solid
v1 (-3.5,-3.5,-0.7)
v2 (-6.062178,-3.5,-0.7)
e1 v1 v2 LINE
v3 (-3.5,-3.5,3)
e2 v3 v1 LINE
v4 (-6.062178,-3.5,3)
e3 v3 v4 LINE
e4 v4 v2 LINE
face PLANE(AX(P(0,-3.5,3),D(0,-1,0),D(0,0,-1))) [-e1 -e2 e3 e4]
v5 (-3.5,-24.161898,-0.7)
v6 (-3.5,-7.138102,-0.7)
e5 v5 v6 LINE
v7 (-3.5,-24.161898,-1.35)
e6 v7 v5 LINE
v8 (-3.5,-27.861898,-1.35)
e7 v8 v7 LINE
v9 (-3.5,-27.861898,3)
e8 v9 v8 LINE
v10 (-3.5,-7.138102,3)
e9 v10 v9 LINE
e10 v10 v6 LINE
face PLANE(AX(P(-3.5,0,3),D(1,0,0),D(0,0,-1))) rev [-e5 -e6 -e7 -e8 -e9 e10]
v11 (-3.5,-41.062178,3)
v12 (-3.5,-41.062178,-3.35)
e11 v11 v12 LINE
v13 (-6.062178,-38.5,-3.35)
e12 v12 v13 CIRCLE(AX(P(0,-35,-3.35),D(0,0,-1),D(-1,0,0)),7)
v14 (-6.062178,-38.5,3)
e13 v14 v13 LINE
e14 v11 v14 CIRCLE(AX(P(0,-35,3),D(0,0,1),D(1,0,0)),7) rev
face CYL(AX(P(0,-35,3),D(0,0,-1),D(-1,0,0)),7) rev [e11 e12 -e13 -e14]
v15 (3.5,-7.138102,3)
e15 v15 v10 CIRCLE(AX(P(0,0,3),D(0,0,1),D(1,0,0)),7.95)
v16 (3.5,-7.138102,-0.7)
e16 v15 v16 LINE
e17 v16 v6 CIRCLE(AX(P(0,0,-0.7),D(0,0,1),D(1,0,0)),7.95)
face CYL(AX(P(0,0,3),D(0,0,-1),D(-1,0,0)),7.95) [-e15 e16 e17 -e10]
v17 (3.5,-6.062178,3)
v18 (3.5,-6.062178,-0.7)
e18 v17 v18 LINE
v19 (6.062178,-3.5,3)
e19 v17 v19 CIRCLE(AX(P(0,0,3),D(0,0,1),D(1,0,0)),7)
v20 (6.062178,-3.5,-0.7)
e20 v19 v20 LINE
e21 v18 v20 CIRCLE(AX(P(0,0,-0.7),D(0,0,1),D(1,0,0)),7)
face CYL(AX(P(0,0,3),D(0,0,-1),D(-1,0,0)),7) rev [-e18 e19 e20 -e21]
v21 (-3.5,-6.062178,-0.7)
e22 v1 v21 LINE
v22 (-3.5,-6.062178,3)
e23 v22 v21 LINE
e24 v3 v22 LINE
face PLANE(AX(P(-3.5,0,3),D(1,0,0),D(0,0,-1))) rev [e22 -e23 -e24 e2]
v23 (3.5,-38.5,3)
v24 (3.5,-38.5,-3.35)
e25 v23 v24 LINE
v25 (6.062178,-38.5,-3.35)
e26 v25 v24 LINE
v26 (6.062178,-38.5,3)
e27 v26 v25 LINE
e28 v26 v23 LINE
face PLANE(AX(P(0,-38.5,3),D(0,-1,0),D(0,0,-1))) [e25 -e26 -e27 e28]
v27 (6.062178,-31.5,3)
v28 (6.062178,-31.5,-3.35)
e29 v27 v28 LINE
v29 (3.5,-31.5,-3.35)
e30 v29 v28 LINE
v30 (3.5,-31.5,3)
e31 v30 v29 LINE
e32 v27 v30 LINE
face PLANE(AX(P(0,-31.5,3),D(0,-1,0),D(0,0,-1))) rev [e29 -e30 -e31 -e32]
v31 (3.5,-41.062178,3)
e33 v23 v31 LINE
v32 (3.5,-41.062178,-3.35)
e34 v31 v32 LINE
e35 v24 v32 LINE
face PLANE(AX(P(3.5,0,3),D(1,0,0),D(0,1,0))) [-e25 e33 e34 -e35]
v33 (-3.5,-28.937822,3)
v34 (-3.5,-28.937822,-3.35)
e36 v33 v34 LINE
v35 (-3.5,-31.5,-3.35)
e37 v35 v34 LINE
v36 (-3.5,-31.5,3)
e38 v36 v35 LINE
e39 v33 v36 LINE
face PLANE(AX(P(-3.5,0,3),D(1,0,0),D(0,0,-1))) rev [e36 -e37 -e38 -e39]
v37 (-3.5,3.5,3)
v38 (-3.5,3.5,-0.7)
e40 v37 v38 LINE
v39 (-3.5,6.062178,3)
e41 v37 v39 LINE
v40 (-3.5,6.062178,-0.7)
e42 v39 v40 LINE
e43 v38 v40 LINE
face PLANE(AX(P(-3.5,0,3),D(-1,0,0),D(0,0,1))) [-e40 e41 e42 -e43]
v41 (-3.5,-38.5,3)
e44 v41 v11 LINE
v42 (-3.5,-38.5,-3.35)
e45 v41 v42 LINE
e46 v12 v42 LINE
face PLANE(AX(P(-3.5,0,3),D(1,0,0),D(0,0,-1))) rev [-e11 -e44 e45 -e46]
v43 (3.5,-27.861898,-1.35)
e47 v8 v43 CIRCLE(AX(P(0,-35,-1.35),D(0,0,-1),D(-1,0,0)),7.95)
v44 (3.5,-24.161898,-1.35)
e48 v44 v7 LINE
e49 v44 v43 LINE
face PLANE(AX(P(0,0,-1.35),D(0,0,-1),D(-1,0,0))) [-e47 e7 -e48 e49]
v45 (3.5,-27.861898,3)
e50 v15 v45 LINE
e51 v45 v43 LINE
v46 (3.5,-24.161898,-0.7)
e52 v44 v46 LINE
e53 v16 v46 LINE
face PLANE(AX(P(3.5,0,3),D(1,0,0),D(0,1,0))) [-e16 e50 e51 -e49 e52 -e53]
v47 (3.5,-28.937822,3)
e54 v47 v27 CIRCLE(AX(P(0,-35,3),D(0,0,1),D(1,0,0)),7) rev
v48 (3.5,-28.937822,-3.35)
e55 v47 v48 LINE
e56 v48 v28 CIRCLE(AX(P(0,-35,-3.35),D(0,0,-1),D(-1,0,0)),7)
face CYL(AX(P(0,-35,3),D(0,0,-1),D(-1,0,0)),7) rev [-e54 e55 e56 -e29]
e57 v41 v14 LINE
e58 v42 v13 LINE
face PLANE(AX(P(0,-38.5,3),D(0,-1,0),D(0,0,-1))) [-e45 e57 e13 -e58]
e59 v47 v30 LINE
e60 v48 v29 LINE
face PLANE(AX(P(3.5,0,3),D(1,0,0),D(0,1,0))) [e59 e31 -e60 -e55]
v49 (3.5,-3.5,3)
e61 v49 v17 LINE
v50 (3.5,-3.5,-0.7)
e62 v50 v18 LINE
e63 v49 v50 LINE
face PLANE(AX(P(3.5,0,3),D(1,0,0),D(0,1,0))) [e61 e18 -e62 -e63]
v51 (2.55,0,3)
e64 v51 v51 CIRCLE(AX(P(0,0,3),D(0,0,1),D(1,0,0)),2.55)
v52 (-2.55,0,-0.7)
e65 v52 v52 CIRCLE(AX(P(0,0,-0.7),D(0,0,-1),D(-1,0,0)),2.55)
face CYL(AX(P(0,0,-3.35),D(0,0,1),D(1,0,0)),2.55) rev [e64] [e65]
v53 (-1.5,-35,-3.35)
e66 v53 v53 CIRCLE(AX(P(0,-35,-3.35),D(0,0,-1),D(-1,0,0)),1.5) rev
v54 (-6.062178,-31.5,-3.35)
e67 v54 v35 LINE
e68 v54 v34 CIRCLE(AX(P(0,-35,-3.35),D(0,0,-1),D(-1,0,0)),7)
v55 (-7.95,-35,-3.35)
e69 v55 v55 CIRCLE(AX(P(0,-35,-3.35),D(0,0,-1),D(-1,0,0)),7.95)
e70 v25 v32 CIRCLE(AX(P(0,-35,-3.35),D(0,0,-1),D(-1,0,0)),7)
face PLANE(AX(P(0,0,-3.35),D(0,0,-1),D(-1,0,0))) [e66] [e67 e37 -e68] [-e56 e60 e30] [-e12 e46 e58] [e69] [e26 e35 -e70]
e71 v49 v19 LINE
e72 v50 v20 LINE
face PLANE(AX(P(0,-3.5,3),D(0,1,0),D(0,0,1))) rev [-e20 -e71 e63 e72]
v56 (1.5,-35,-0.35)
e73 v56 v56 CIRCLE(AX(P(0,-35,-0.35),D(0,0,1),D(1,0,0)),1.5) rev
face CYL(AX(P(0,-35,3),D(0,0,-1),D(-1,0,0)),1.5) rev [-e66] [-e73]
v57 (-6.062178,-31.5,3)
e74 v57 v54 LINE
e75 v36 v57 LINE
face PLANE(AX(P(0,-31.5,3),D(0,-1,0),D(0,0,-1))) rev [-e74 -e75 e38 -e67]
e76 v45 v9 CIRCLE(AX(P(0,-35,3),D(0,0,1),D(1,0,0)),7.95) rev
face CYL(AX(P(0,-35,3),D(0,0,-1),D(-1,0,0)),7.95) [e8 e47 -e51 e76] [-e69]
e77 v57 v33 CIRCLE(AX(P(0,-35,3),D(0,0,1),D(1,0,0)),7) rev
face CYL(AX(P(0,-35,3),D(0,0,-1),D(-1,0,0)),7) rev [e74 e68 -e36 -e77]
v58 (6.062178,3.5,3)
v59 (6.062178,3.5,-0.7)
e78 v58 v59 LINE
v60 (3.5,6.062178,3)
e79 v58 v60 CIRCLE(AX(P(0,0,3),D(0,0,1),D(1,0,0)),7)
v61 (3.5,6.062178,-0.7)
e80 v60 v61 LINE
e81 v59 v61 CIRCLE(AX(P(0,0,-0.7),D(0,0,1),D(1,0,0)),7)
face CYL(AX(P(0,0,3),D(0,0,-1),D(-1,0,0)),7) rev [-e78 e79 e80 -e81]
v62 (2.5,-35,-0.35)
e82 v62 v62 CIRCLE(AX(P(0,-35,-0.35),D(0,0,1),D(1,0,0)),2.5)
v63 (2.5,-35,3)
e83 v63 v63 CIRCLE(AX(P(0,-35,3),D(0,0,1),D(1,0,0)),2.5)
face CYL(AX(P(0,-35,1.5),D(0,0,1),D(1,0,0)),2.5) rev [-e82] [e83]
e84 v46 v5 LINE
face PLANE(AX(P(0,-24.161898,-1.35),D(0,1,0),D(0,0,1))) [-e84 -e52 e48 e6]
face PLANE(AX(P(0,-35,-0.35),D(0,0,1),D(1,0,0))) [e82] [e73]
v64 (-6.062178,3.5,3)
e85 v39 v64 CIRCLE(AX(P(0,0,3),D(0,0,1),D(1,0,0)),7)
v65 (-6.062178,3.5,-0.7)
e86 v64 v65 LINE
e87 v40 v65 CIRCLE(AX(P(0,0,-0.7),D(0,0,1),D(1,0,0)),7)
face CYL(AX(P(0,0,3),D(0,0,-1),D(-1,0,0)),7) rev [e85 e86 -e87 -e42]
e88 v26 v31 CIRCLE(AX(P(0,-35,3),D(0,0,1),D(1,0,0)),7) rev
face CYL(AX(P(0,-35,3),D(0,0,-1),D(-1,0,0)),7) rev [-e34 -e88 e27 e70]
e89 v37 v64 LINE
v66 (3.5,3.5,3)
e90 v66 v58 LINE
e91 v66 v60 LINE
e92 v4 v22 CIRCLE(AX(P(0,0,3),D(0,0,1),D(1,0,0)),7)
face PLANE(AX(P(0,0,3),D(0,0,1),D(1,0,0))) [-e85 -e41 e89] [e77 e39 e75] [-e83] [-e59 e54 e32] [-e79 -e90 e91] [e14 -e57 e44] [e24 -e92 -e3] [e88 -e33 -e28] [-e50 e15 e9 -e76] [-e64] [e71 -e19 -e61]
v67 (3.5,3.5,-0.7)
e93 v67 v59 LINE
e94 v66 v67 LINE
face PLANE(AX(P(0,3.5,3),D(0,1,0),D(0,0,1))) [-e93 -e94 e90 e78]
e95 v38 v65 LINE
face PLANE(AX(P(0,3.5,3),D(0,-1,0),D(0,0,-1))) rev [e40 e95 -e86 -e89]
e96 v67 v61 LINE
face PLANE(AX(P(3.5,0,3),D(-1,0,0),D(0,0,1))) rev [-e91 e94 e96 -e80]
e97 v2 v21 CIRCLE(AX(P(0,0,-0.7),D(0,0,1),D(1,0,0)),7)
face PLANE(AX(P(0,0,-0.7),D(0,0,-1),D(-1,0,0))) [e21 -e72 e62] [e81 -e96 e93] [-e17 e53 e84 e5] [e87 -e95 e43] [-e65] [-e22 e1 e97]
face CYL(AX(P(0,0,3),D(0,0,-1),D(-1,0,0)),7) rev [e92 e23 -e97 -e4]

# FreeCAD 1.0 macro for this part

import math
import FreeCAD as App
import Part
import Sketcher

V = App.Vector

doc = App.newDocument("Part")
body = doc.addObject("PartDesign::Body", "Body")

sketch1 = body.newObject("Sketcher::SketchObject", "Sketch")
sketch1.AttachmentSupport = (doc.getObject("XY_Plane"), [""])
sketch1.MapMode = "FlatFace"
sketch1.addGeometry(Part.ArcOfCircle(Part.Circle(V(0, 0, 0), V(0, 0, 1), 8), math.radians(26), math.radians(154)), False)
sketch1.addGeometry(Part.ArcOfCircle(Part.Circle(V(0, 0, 0), V(0, 0, 1), 8), math.radians(154), math.radians(206)), False)
sketch1.addGeometry(Part.ArcOfCircle(Part.Circle(V(0, 0, 0), V(0, 0, 1), 8), math.radians(-154), math.radians(-116)), False)
sketch1.addGeometry(Part.LineSegment(V(-3.5, -7.1, 0), V(-3.5, -27.9, 0)), False)
sketch1.addGeometry(Part.ArcOfCircle(Part.Circle(V(0, -35, 0), V(0, 0, 1), 8), math.radians(116), math.radians(154)), False)
sketch1.addGeometry(Part.ArcOfCircle(Part.Circle(V(0, -35, 0), V(0, 0, 1), 8), math.radians(154), math.radians(206)), False)
sketch1.addGeometry(Part.ArcOfCircle(Part.Circle(V(0, -35, 0), V(0, 0, 1), 8), math.radians(-154), math.radians(-26)), False)
sketch1.addGeometry(Part.ArcOfCircle(Part.Circle(V(0, -35, 0), V(0, 0, 1), 8), math.radians(-26), math.radians(0)), False)
sketch1.addGeometry(Part.ArcOfCircle(Part.Circle(V(0, -35, 0), V(0, 0, 1), 8), math.radians(0), math.radians(26)), False)
sketch1.addGeometry(Part.ArcOfCircle(Part.Circle(V(0, -35, 0), V(0, 0, 1), 8), math.radians(26), math.radians(64)), False)
sketch1.addGeometry(Part.LineSegment(V(3.5, -27.9, 0), V(3.5, -7.1, 0)), False)
sketch1.addGeometry(Part.ArcOfCircle(Part.Circle(V(0, 0, 0), V(0, 0, 1), 8), math.radians(-64), math.radians(-26)), False)
sketch1.addGeometry(Part.ArcOfCircle(Part.Circle(V(0, 0, 0), V(0, 0, 1), 8), math.radians(-26), math.radians(0)), False)
sketch1.addGeometry(Part.ArcOfCircle(Part.Circle(V(0, 0, 0), V(0, 0, 1), 8), math.radians(0), math.radians(26)), False)
sketch1.addGeometry(Part.LineSegment(V(3.5, 3.5, 0), V(3.5, 6.1, 0)), False)
sketch1.addGeometry(Part.ArcOfCircle(Part.Circle(V(0, 0, 0), V(0, 0, 1), 7), math.radians(30), math.radians(60)), False)
sketch1.addGeometry(Part.LineSegment(V(6.1, 3.5, 0), V(3.5, 3.5, 0)), False)
sketch1.addGeometry(Part.LineSegment(V(-3.5, 6.1, 0), V(-3.5, 3.5, 0)), False)
sketch1.addGeometry(Part.LineSegment(V(-3.5, 3.5, 0), V(-6.1, 3.5, 0)), False)
sketch1.addGeometry(Part.ArcOfCircle(Part.Circle(V(0, 0, 0), V(0, 0, 1), 7), math.radians(120), math.radians(150)), False)
sketch1.addGeometry(Part.Circle(V(0, 0, 0), V(0, 0, 1), 1.5), False)
sketch1.addGeometry(Part.LineSegment(V(-6.1, -3.5, 0), V(-3.5, -3.5, 0)), False)
sketch1.addGeometry(Part.LineSegment(V(-3.5, -3.5, 0), V(-3.5, -6.1, 0)), False)
sketch1.addGeometry(Part.ArcOfCircle(Part.Circle(V(0, 0, 0), V(0, 0, 1), 7), math.radians(-150), math.radians(-120)), False)
sketch1.addGeometry(Part.LineSegment(V(3.5, -3.5, 0), V(6.1, -3.5, 0)), False)
sketch1.addGeometry(Part.ArcOfCircle(Part.Circle(V(0, 0, 0), V(0, 0, 1), 7), math.radians(-60), math.radians(-30)), False)
sketch1.addGeometry(Part.LineSegment(V(3.5, -6.1, 0), V(3.5, -3.5, 0)), False)
sketch1.addGeometry(Part.ArcOfCircle(Part.Circle(V(0, -35, 0), V(0, 0, 1), 7), math.radians(30), math.radians(60)), False)
sketch1.addGeometry(Part.LineSegment(V(6.1, -31.5, 0), V(3.5, -31.5, 0)), False)
sketch1.addGeometry(Part.LineSegment(V(3.5, -31.5, 0), V(3.5, -28.9, 0)), False)
sketch1.addGeometry(Part.LineSegment(V(-3.5, -28.9, 0), V(-3.5, -31.5, 0)), False)
sketch1.addGeometry(Part.LineSegment(V(-3.5, -31.5, 0), V(-6.1, -31.5, 0)), False)
sketch1.addGeometry(Part.ArcOfCircle(Part.Circle(V(0, -35, 0), V(0, 0, 1), 7), math.radians(120), math.radians(150)), False)
sketch1.addGeometry(Part.LineSegment(V(3.5, -38.5, 0), V(6.1, -38.5, 0)), False)
sketch1.addGeometry(Part.ArcOfCircle(Part.Circle(V(0, -35, 0), V(0, 0, 1), 7), math.radians(-60), math.radians(-30)), False)
sketch1.addGeometry(Part.LineSegment(V(3.5, -41.1, 0), V(3.5, -38.5, 0)), False)
sketch1.addGeometry(Part.ArcOfCircle(Part.Circle(V(0, -35, 0), V(0, 0, 1), 7), math.radians(-150), math.radians(-120)), False)
sketch1.addGeometry(Part.LineSegment(V(-6.1, -38.5, 0), V(-3.5, -38.5, 0)), False)
sketch1.addGeometry(Part.LineSegment(V(-3.5, -38.5, 0), V(-3.5, -41.1, 0)), False)
sketch1.addGeometry(Part.Circle(V(0, -35, 0), V(0, 0, 1), 1.5), False)
sketch1.addConstraint(Sketcher.Constraint("Tangent", 0, 2, 1, 1))
sketch1.addConstraint(Sketcher.Constraint("Tangent", 1, 2, 2, 1))
sketch1.addConstraint(Sketcher.Constraint("Coincident", 2, 2, 3, 1))
sketch1.addConstraint(Sketcher.Constraint("Coincident", 3, 2, 4, 1))
sketch1.addConstraint(Sketcher.Constraint("Tangent", 4, 2, 5, 1))
sketch1.addConstraint(Sketcher.Constraint("Tangent", 5, 2, 6, 1))
sketch1.addConstraint(Sketcher.Constraint("Tangent", 6, 2, 7, 1))
sketch1.addConstraint(Sketcher.Constraint("Tangent", 7, 2, 8, 1))
sketch1.addConstraint(Sketcher.Constraint("Tangent", 8, 2, 9, 1))
sketch1.addConstraint(Sketcher.Constraint("Coincident", 9, 2, 10, 1))
sketch1.addConstraint(Sketcher.Constraint("Coincident", 10, 2, 11, 1))
sketch1.addConstraint(Sketcher.Constraint("Tangent", 11, 2, 12, 1))
sketch1.addConstraint(Sketcher.Constraint("Tangent", 12, 2, 13, 1))
sketch1.addConstraint(Sketcher.Constraint("Tangent", 13, 2, 0, 1))
sketch1.addConstraint(Sketcher.Constraint("Coincident", 14, 2, 15, 2))
sketch1.addConstraint(Sketcher.Constraint("Coincident", 15, 1, 16, 1))
sketch1.addConstraint(Sketcher.Constraint("Coincident", 16, 2, 14, 1))
sketch1.addConstraint(Sketcher.Constraint("Coincident", 17, 2, 18, 1))
sketch1.addConstraint(Sketcher.Constraint("Coincident", 18, 2, 19, 2))
sketch1.addConstraint(Sketcher.Constraint("Coincident", 19, 1, 17, 1))
sketch1.addConstraint(Sketcher.Constraint("Coincident", 21, 2, 22, 1))
sketch1.addConstraint(Sketcher.Constraint("Coincident", 22, 2, 23, 2))
sketch1.addConstraint(Sketcher.Constraint("Coincident", 23, 1, 21, 1))
sketch1.addConstraint(Sketcher.Constraint("Coincident", 24, 2, 25, 2))
sketch1.addConstraint(Sketcher.Constraint("Coincident", 25, 1, 26, 1))
sketch1.addConstraint(Sketcher.Constraint("Coincident", 26, 2, 24, 1))
sketch1.addConstraint(Sketcher.Constraint("Coincident", 27, 1, 28, 1))
sketch1.addConstraint(Sketcher.Constraint("Coincident", 28, 2, 29, 1))
sketch1.addConstraint(Sketcher.Constraint("Coincident", 29, 2, 27, 2))
sketch1.addConstraint(Sketcher.Constraint("Coincident", 30, 2, 31, 1))
sketch1.addConstraint(Sketcher.Constraint("Coincident", 31, 2, 32, 2))
sketch1.addConstraint(Sketcher.Constraint("Coincident", 32, 1, 30, 1))
sketch1.addConstraint(Sketcher.Constraint("Coincident", 33, 2, 34, 2))
sketch1.addConstraint(Sketcher.Constraint("Coincident", 34, 1, 35, 1))
sketch1.addConstraint(Sketcher.Constraint("Coincident", 35, 2, 33, 1))
sketch1.addConstraint(Sketcher.Constraint("Coincident", 36, 1, 37, 1))
sketch1.addConstraint(Sketcher.Constraint("Coincident", 37, 2, 38, 1))
sketch1.addConstraint(Sketcher.Constraint("Coincident", 38, 2, 36, 2))
sketch1.addConstraint(Sketcher.Constraint("Vertical", 3))
sketch1.addConstraint(Sketcher.Constraint("Vertical", 10))
sketch1.addConstraint(Sketcher.Constraint("Vertical", 14))
sketch1.addConstraint(Sketcher.Constraint("Horizontal", 16))
sketch1.addConstraint(Sketcher.Constraint("Vertical", 17))
sketch1.addConstraint(Sketcher.Constraint("Horizontal", 18))
sketch1.addConstraint(Sketcher.Constraint("Horizontal", 21))
sketch1.addConstraint(Sketcher.Constraint("Vertical", 22))
sketch1.addConstraint(Sketcher.Constraint("Horizontal", 24))
sketch1.addConstraint(Sketcher.Constraint("Vertical", 26))
sketch1.addConstraint(Sketcher.Constraint("Horizontal", 28))
sketch1.addConstraint(Sketcher.Constraint("Vertical", 29))
sketch1.addConstraint(Sketcher.Constraint("Vertical", 30))
sketch1.addConstraint(Sketcher.Constraint("Horizontal", 31))
sketch1.addConstraint(Sketcher.Constraint("Horizontal", 33))
sketch1.addConstraint(Sketcher.Constraint("Vertical", 35))
sketch1.addConstraint(Sketcher.Constraint("Horizontal", 37))
sketch1.addConstraint(Sketcher.Constraint("Vertical", 38))
sketch1.addConstraint(Sketcher.Constraint("Coincident", 0, 3, -1, 1))
sketch1.addConstraint(Sketcher.Constraint("Coincident", 2, 3, -1, 1))
sketch1.addConstraint(Sketcher.Constraint("Coincident", 11, 3, -1, 1))
sketch1.addConstraint(Sketcher.Constraint("Coincident", 15, 3, -1, 1))
sketch1.addConstraint(Sketcher.Constraint("Coincident", 19, 3, -1, 1))
sketch1.addConstraint(Sketcher.Constraint("Coincident", 20, 3, -1, 1))
sketch1.addConstraint(Sketcher.Constraint("Coincident", 23, 3, -1, 1))
sketch1.addConstraint(Sketcher.Constraint("Coincident", 25, 3, -1, 1))
sketch1.addConstraint(Sketcher.Constraint("Coincident", 6, 3, 4, 3))
sketch1.addConstraint(Sketcher.Constraint("Coincident", 8, 3, 4, 3))
sketch1.addConstraint(Sketcher.Constraint("Coincident", 27, 3, 4, 3))
sketch1.addConstraint(Sketcher.Constraint("Coincident", 32, 3, 4, 3))
sketch1.addConstraint(Sketcher.Constraint("Coincident", 34, 3, 4, 3))
sketch1.addConstraint(Sketcher.Constraint("Coincident", 36, 3, 4, 3))
sketch1.addConstraint(Sketcher.Constraint("Coincident", 39, 3, 4, 3))
sketch1.addConstraint(Sketcher.Constraint("Equal", 2, 4))
sketch1.addConstraint(Sketcher.Constraint("Equal", 8, 9))
sketch1.addConstraint(Sketcher.Constraint("Equal", 9, 11))
sketch1.addConstraint(Sketcher.Constraint("Equal", 15, 19))
sketch1.addConstraint(Sketcher.Constraint("Equal", 19, 23))
sketch1.addConstraint(Sketcher.Constraint("Equal", 23, 25))
sketch1.addConstraint(Sketcher.Constraint("Equal", 25, 27))
sketch1.addConstraint(Sketcher.Constraint("Equal", 27, 32))
sketch1.addConstraint(Sketcher.Constraint("Equal", 32, 34))
sketch1.addConstraint(Sketcher.Constraint("Equal", 34, 36))
sketch1.addConstraint(Sketcher.Constraint("Equal", 20, 39))
sketch1.addConstraint(Sketcher.Constraint("Symmetric", 16, 2, 21, 2, -1, 1))
sketch1.addConstraint(Sketcher.Constraint("Symmetric", 17, 2, 26, 2, -1, 1))
sketch1.addConstraint(Sketcher.Constraint("Symmetric", 5, 2, 6, 2, -2))
sketch1.addConstraint(Sketcher.Constraint("Symmetric", 16, 2, 17, 2, -2))
sketch1.addConstraint(Sketcher.Constraint("Symmetric", 28, 2, 30, 2, -2))
sketch1.addConstraint(Sketcher.Constraint("Symmetric", 35, 2, 37, 2, -2))
sketch1.addConstraint(Sketcher.Constraint("PointOnObject", 12, 2, -1))
sketch1.addConstraint(Sketcher.Constraint("Horizontal", 39, 3, 7, 2))
sketch1.addConstraint(Sketcher.Constraint("Horizontal", 4, 2, 8, 2))
sketch1.addConstraint(Sketcher.Constraint("Horizontal", 3, 2, 9, 2))
sketch1.addConstraint(Sketcher.Constraint("Horizontal", 1, 2, 11, 2))
sketch1.addConstraint(Sketcher.Constraint("Horizontal", 0, 2, 13, 2))
sketch1.addConstraint(Sketcher.Constraint("Horizontal", 13, 2, 15, 1))
sketch1.addConstraint(Sketcher.Constraint("Horizontal", 11, 2, 21, 2))
sketch1.addConstraint(Sketcher.Constraint("Horizontal", 8, 2, 27, 1))
sketch1.addConstraint(Sketcher.Constraint("Horizontal", 6, 2, 33, 2))
sketch1.addConstraint(Sketcher.Constraint("Vertical", 1, 2, 4, 2))
sketch1.addConstraint(Sketcher.Constraint("Vertical", 4, 2, 5, 2))
sketch1.addConstraint(Sketcher.Constraint("Vertical", 10, 2, 14, 2))
sketch1.addConstraint(Sketcher.Constraint("Vertical", 26, 2, 28, 2))
sketch1.addConstraint(Sketcher.Constraint("Vertical", 29, 2, 34, 1))
sketch1.addConstraint(Sketcher.Constraint("Equal", 37, 14))
sketch1.addConstraint(Sketcher.Constraint("Diameter", 20, 3.0))
sketch1.addConstraint(Sketcher.Constraint("Radius", 15, 7.0))
sketch1.addConstraint(Sketcher.Constraint("Radius", 0, 7.95))
sketch1.addConstraint(Sketcher.Constraint("DistanceY", 4, 3, -1, 1, 35.0))
sketch1.addConstraint(Sketcher.Constraint("DistanceY", 1, 2, 0, 2, 7.0))
pad1 = body.newObject("PartDesign::Pad", "Pad")
pad1.Profile = sketch1
pad1.Length = 3

sketch2 = body.newObject("Sketcher::SketchObject", "Sketch001")
sketch2.AttachmentSupport = (doc.getObject("XY_Plane"), [""])
sketch2.MapMode = "FlatFace"
sketch2.AttachmentOffset = App.Placement(V(0, 0, -3), App.Rotation())
sketch2.addGeometry(Part.ArcOfCircle(Part.Circle(V(0, 0, 0), V(0, 0, 1), 8), math.radians(-180), math.radians(-116)), False)
sketch2.addGeometry(Part.ArcOfCircle(Part.Circle(V(0, 0, 0), V(0, 0, 1), 8), math.radians(-64), math.radians(180)), False)
sketch2.addGeometry(Part.ArcOfCircle(Part.Circle(V(0, 0, 0), V(0, 0, 1), 8), math.radians(-116), math.radians(-64)), False)
sketch2.addGeometry(Part.ArcOfCircle(Part.Circle(V(0, 0, 0), V(0, 0, 1), 7), math.radians(-60), math.radians(-30)), False)
sketch2.addGeometry(Part.LineSegment(V(6.1, -3.5, 0), V(3.5, -3.5, 0)), False)
sketch2.addGeometry(Part.LineSegment(V(3.5, -3.5, 0), V(3.5, -6.1, 0)), False)
sketch2.addGeometry(Part.ArcOfCircle(Part.Circle(V(0, 0, 0), V(0, 0, 1), 7), math.radians(-150), math.radians(-120)), False)
sketch2.addGeometry(Part.LineSegment(V(-3.5, -6.1, 0), V(-3.5, -3.5, 0)), False)
sketch2.addGeometry(Part.LineSegment(V(-3.5, -3.5, 0), V(-6.1, -3.5, 0)), False)
sketch2.addGeometry(Part.ArcOfCircle(Part.Circle(V(0, 0, 0), V(0, 0, 1), 7), math.radians(120), math.radians(150)), False)
sketch2.addGeometry(Part.LineSegment(V(-6.1, 3.5, 0), V(-3.5, 3.5, 0)), False)
sketch2.addGeometry(Part.LineSegment(V(-3.5, 3.5, 0), V(-3.5, 6.1, 0)), False)
sketch2.addGeometry(Part.ArcOfCircle(Part.Circle(V(0, 0, 0), V(0, 0, 1), 7), math.radians(30), math.radians(60)), False)
sketch2.addGeometry(Part.LineSegment(V(3.5, 6.1, 0), V(3.5, 3.5, 0)), False)
sketch2.addGeometry(Part.LineSegment(V(3.5, 3.5, 0), V(6.1, 3.5, 0)), False)
sketch2.addGeometry(Part.Circle(V(0, 0, 0), V(0, 0, 1), 1.5), False)
sketch2.addGeometry(Part.ArcOfCircle(Part.Circle(V(0, -35, 0), V(0, 0, 1), 8), math.radians(180), math.radians(424)), False)
sketch2.addGeometry(Part.ArcOfCircle(Part.Circle(V(0, -35, 0), V(0, 0, 1), 8), math.radians(116), math.radians(180)), False)
sketch2.addGeometry(Part.ArcOfCircle(Part.Circle(V(0, -35, 0), V(0, 0, 1), 8), math.radians(64), math.radians(116)), False)
sketch2.addGeometry(Part.ArcOfCircle(Part.Circle(V(0, -35, 0), V(0, 0, 1), 7), math.radians(120), math.radians(150)), False)
sketch2.addGeometry(Part.LineSegment(V(-6.1, -31.5, 0), V(-3.5, -31.5, 0)), False)
sketch2.addGeometry(Part.LineSegment(V(-3.5, -31.5, 0), V(-3.5, -28.9, 0)), False)
sketch2.addGeometry(Part.ArcOfCircle(Part.Circle(V(0, -35, 0), V(0, 0, 1), 7), math.radians(30), math.radians(60)), False)
sketch2.addGeometry(Part.LineSegment(V(3.5, -28.9, 0), V(3.5, -31.5, 0)), False)
sketch2.addGeometry(Part.LineSegment(V(3.5, -31.5, 0), V(6.1, -31.5, 0)), False)
sketch2.addGeometry(Part.ArcOfCircle(Part.Circle(V(0, -35, 0), V(0, 0, 1), 7), math.radians(-60), math.radians(-30)), False)
sketch2.addGeometry(Part.LineSegment(V(6.1, -38.5, 0), V(3.5, -38.5, 0)), False)
sketch2.addGeometry(Part.LineSegment(V(3.5, -38.5, 0), V(3.5, -41.1, 0)), False)
sketch2.addGeometry(Part.ArcOfCircle(Part.Circle(V(0, -35, 0), V(0, 0, 1), 7), math.radians(-150), math.radians(-120)), False)
sketch2.addGeometry(Part.LineSegment(V(-3.5, -41.1, 0), V(-3.5, -38.5, 0)), False)
sketch2.addGeometry(Part.LineSegment(V(-3.5, -38.5, 0), V(-6.1, -38.5, 0)), False)
sketch2.addGeometry(Part.Circle(V(0, -35, 0), V(0, 0, 1), 1.5), False)
sketch2.addConstraint(Sketcher.Constraint("Tangent", 0, 1, 1, 2))
sketch2.addConstraint(Sketcher.Constraint("Tangent", 1, 1, 2, 2))
sketch2.addConstraint(Sketcher.Constraint("Tangent", 2, 1, 0, 2))
sketch2.addConstraint(Sketcher.Constraint("Coincident", 3, 2, 4, 1))
sketch2.addConstraint(Sketcher.Constraint("Coincident", 4, 2, 5, 1))
sketch2.addConstraint(Sketcher.Constraint("Coincident", 5, 2, 3, 1))
sketch2.addConstraint(Sketcher.Constraint("Coincident", 6, 2, 7, 1))
sketch2.addConstraint(Sketcher.Constraint("Coincident", 7, 2, 8, 1))
sketch2.addConstraint(Sketcher.Constraint("Coincident", 8, 2, 6, 1))
sketch2.addConstraint(Sketcher.Constraint("Coincident", 9, 2, 10, 1))
sketch2.addConstraint(Sketcher.Constraint("Coincident", 10, 2, 11, 1))
sketch2.addConstraint(Sketcher.Constraint("Coincident", 11, 2, 9, 1))
sketch2.addConstraint(Sketcher.Constraint("Coincident", 12, 2, 13, 1))
sketch2.addConstraint(Sketcher.Constraint("Coincident", 13, 2, 14, 1))
sketch2.addConstraint(Sketcher.Constraint("Coincident", 14, 2, 12, 1))
sketch2.addConstraint(Sketcher.Constraint("Tangent", 16, 1, 17, 2))
sketch2.addConstraint(Sketcher.Constraint("Tangent", 17, 1, 18, 2))
sketch2.addConstraint(Sketcher.Constraint("Tangent", 18, 1, 16, 2))
sketch2.addConstraint(Sketcher.Constraint("Coincident", 19, 2, 20, 1))
sketch2.addConstraint(Sketcher.Constraint("Coincident", 20, 2, 21, 1))
sketch2.addConstraint(Sketcher.Constraint("Coincident", 21, 2, 19, 1))
sketch2.addConstraint(Sketcher.Constraint("Coincident", 22, 2, 23, 1))
sketch2.addConstraint(Sketcher.Constraint("Coincident", 23, 2, 24, 1))
sketch2.addConstraint(Sketcher.Constraint("Coincident", 24, 2, 22, 1))
sketch2.addConstraint(Sketcher.Constraint("Coincident", 25, 2, 26, 1))
sketch2.addConstraint(Sketcher.Constraint("Coincident", 26, 2, 27, 1))
sketch2.addConstraint(Sketcher.Constraint("Coincident", 27, 2, 25, 1))
sketch2.addConstraint(Sketcher.Constraint("Coincident", 28, 2, 29, 1))
sketch2.addConstraint(Sketcher.Constraint("Coincident", 29, 2, 30, 1))
sketch2.addConstraint(Sketcher.Constraint("Coincident", 30, 2, 28, 1))
sketch2.addConstraint(Sketcher.Constraint("Horizontal", 4))
sketch2.addConstraint(Sketcher.Constraint("Vertical", 5))
sketch2.addConstraint(Sketcher.Constraint("Vertical", 7))
sketch2.addConstraint(Sketcher.Constraint("Horizontal", 8))
sketch2.addConstraint(Sketcher.Constraint("Horizontal", 10))
sketch2.addConstraint(Sketcher.Constraint("Vertical", 11))
sketch2.addConstraint(Sketcher.Constraint("Vertical", 13))
sketch2.addConstraint(Sketcher.Constraint("Horizontal", 14))
sketch2.addConstraint(Sketcher.Constraint("Horizontal", 20))
sketch2.addConstraint(Sketcher.Constraint("Vertical", 21))
sketch2.addConstraint(Sketcher.Constraint("Vertical", 23))
sketch2.addConstraint(Sketcher.Constraint("Horizontal", 24))
sketch2.addConstraint(Sketcher.Constraint("Horizontal", 26))
sketch2.addConstraint(Sketcher.Constraint("Vertical", 27))
sketch2.addConstraint(Sketcher.Constraint("Vertical", 29))
sketch2.addConstraint(Sketcher.Constraint("Horizontal", 30))
sketch2.addConstraint(Sketcher.Constraint("Coincident", 0, 3, -1, 1))
sketch2.addConstraint(Sketcher.Constraint("Coincident", 3, 3, -1, 1))
sketch2.addConstraint(Sketcher.Constraint("Coincident", 6, 3, -1, 1))
sketch2.addConstraint(Sketcher.Constraint("Coincident", 9, 3, -1, 1))
sketch2.addConstraint(Sketcher.Constraint("Coincident", 12, 3, -1, 1))
sketch2.addConstraint(Sketcher.Constraint("Coincident", 15, 3, -1, 1))
sketch2.addConstraint(Sketcher.Constraint("Coincident", 19, 3, 16, 3))
sketch2.addConstraint(Sketcher.Constraint("Coincident", 22, 3, 16, 3))
sketch2.addConstraint(Sketcher.Constraint("Coincident", 25, 3, 16, 3))
sketch2.addConstraint(Sketcher.Constraint("Coincident", 28, 3, 16, 3))
sketch2.addConstraint(Sketcher.Constraint("Coincident", 31, 3, 16, 3))
sketch2.addConstraint(Sketcher.Constraint("Equal", 3, 6))
sketch2.addConstraint(Sketcher.Constraint("Equal", 6, 9))
sketch2.addConstraint(Sketcher.Constraint("Equal", 9, 12))
sketch2.addConstraint(Sketcher.Constraint("Equal", 2, 16))
sketch2.addConstraint(Sketcher.Constraint("Equal", 12, 19))
sketch2.addConstraint(Sketcher.Constraint("Equal", 19, 22))
sketch2.addConstraint(Sketcher.Constraint("Equal", 22, 25))
sketch2.addConstraint(Sketcher.Constraint("Equal", 25, 28))
sketch2.addConstraint(Sketcher.Constraint("Equal", 15, 31))
sketch2.addConstraint(Sketcher.Constraint("Symmetric", 4, 2, 10, 2, -1, 1))
sketch2.addConstraint(Sketcher.Constraint("Symmetric", 7, 2, 13, 2, -1, 1))
sketch2.addConstraint(Sketcher.Constraint("Symmetric", 4, 2, 7, 2, -2))
sketch2.addConstraint(Sketcher.Constraint("Symmetric", 17, 1, 18, 1, -2))
sketch2.addConstraint(Sketcher.Constraint("Symmetric", 20, 2, 23, 2, -2))
sketch2.addConstraint(Sketcher.Constraint("Symmetric", 26, 2, 29, 2, -2))
sketch2.addConstraint(Sketcher.Constraint("PointOnObject", 0, 1, -1))
sketch2.addConstraint(Sketcher.Constraint("Horizontal", 1, 1, 2, 1))
sketch2.addConstraint(Sketcher.Constraint("Horizontal", 31, 3, 16, 1))
sketch2.addConstraint(Sketcher.Constraint("Vertical", 1, 1, 4, 2))
sketch2.addConstraint(Sketcher.Constraint("Vertical", 11, 2, 17, 1))
sketch2.addConstraint(Sketcher.Constraint("Vertical", 9, 2, 19, 2))
sketch2.addConstraint(Sketcher.Constraint("Vertical", 17, 1, 20, 2))
sketch2.addConstraint(Sketcher.Constraint("Vertical", 24, 2, 25, 2))
sketch2.addConstraint(Sketcher.Constraint("Vertical", 23, 2, 26, 2))
sketch2.addConstraint(Sketcher.Constraint("Equal", 30, 5))
sketch2.addConstraint(Sketcher.Constraint("Diameter", 15, 3.0))
sketch2.addConstraint(Sketcher.Constraint("Radius", 3, 7.0))
sketch2.addConstraint(Sketcher.Constraint("Radius", 0, 7.95))
sketch2.addConstraint(Sketcher.Constraint("DistanceY", 16, 3, -1, 1, 35.0))
sketch2.addConstraint(Sketcher.Constraint("DistanceX", 2, 1, 1, 1, 7.0))
pad2 = body.newObject("PartDesign::Pad", "Pad001")
pad2.Profile = sketch2
pad2.Length = 3

sketch3 = body.newObject("Sketcher::SketchObject", "Sketch002")
sketch3.AttachmentSupport = (doc.getObject("XY_Plane"), [""])
sketch3.MapMode = "FlatFace"
sketch3.AttachmentOffset = App.Placement(V(0, 0, 3), App.Rotation())
sketch3.addGeometry(Part.Circle(V(0, -35, 0), V(0, 0, 1), 2.5), False)
sketch3.addGeometry(Part.Circle(V(0, 0, 0), V(0, 0, 1), 2.5), False)
sketch3.addConstraint(Sketcher.Constraint("Coincident", 1, 3, -1, 1))
sketch3.addConstraint(Sketcher.Constraint("Equal", 0, 1))
sketch3.addConstraint(Sketcher.Constraint("PointOnObject", 0, 3, -2))
sketch3.addConstraint(Sketcher.Constraint("Diameter", 0, 5.0))
sketch3.addConstraint(Sketcher.Constraint("DistanceY", 0, 3, -1, 1, 35.0))
pocket1 = body.newObject("PartDesign::Pocket", "Pocket")
pocket1.Profile = sketch3
pocket1.Length = 1.5

sketch4 = body.newObject("Sketcher::SketchObject", "Sketch003")
sketch4.AttachmentSupport = (doc.getObject("XY_Plane"), [""])
sketch4.MapMode = "FlatFace"
sketch4.AttachmentOffset = App.Placement(V(0, 0, -3), App.Rotation())
sketch4.addGeometry(Part.Circle(V(0, 0, 0), V(0, 0, 1), 7), False)
sketch4.addConstraint(Sketcher.Constraint("Coincident", 0, 3, -1, 1))
sketch4.addConstraint(Sketcher.Constraint("Diameter", 0, 14.0))
pocket2 = body.newObject("PartDesign::Pocket", "Pocket001")
pocket2.Profile = sketch4
pocket2.Length = 2
pocket2.Reversed = True

sketch5 = body.newObject("Sketcher::SketchObject", "Sketch004")
sketch5.AttachmentSupport = (doc.getObject("XY_Plane"), [""])
sketch5.MapMode = "FlatFace"
sketch5.AttachmentOffset = App.Placement(V(0, 0, -3), App.Rotation())
sketch5.addGeometry(Part.Circle(V(0, -35, 0), V(0, 0, 1), 8), False)
sketch5.addConstraint(Sketcher.Constraint("PointOnObject", 0, 3, -2))
sketch5.addConstraint(Sketcher.Constraint("Diameter", 0, 15.9))
sketch5.addConstraint(Sketcher.Constraint("DistanceY", 0, 3, -1, 1, 35.0))
pocket3 = body.newObject("PartDesign::Pocket", "Pocket002")
pocket3.Profile = sketch5
pocket3.Length = 1
pocket3.Reversed = True

sketch6 = body.newObject("Sketcher::SketchObject", "Sketch005")
sketch6.AttachmentSupport = (doc.getObject("XY_Plane"), [""])
sketch6.MapMode = "FlatFace"
sketch6.AttachmentOffset = App.Placement(V(0, 0, 1.5), App.Rotation())
sketch6.addGeometry(Part.Circle(V(0, -35, 0), V(0, 0, 1), 2.5), False)
sketch6.addConstraint(Sketcher.Constraint("PointOnObject", 0, 3, -2))
sketch6.addConstraint(Sketcher.Constraint("Diameter", 0, 5.0))
sketch6.addConstraint(Sketcher.Constraint("DistanceY", 0, 3, -1, 1, 35.0))
pocket4 = body.newObject("PartDesign::Pocket", "Pocket003")
pocket4.Profile = sketch6
pocket4.Length = 1.85

sketch7 = body.newObject("Sketcher::SketchObject", "Sketch006")
sketch7.AttachmentSupport = (doc.getObject("XY_Plane"), [""])
sketch7.MapMode = "FlatFace"
sketch7.AttachmentOffset = App.Placement(V(0, 0, -3.7), App.Rotation())
sketch7.addGeometry(Part.Circle(V(0, 0, 0), V(0, 0, 1), 8), False)
sketch7.addGeometry(Part.Circle(V(0, 0, 0), V(0, 0, 1), 7), False)
sketch7.addConstraint(Sketcher.Constraint("Coincident", 0, 3, -1, 1))
sketch7.addConstraint(Sketcher.Constraint("Coincident", 1, 3, -1, 1))
sketch7.addConstraint(Sketcher.Constraint("Diameter", 1, 14.0))
sketch7.addConstraint(Sketcher.Constraint("Diameter", 0, 15.9))
pad3 = body.newObject("PartDesign::Pad", "Pad002")
pad3.Profile = sketch7
pad3.Length = 0.7

sketch8 = body.newObject("Sketcher::SketchObject", "Sketch007")
sketch8.AttachmentSupport = (doc.getObject("XY_Plane"), [""])
sketch8.MapMode = "FlatFace"
sketch8.AttachmentOffset = App.Placement(V(0, 0, -2.7), App.Rotation())
sketch8.addGeometry(Part.Circle(V(0, -35, 0), V(0, 0, 1), 8), False)
sketch8.addGeometry(Part.ArcOfCircle(Part.Circle(V(0, -35, 0), V(0, 0, 1), 7), math.radians(-60), math.radians(-30)), False)
sketch8.addGeometry(Part.LineSegment(V(6.1, -38.5, 0), V(3.5, -38.5, 0)), False)
sketch8.addGeometry(Part.LineSegment(V(3.5, -38.5, 0), V(3.5, -41.1, 0)), False)
sketch8.addGeometry(Part.ArcOfCircle(Part.Circle(V(0, -35, 0), V(0, 0, 1), 7), math.radians(-150), math.radians(-120)), False)
sketch8.addGeometry(Part.LineSegment(V(-3.5, -41.1, 0), V(-3.5, -38.5, 0)), False)
sketch8.addGeometry(Part.LineSegment(V(-3.5, -38.5, 0), V(-6.1, -38.5, 0)), False)
sketch8.addGeometry(Part.ArcOfCircle(Part.Circle(V(0, -35, 0), V(0, 0, 1), 7), math.radians(120), math.radians(150)), False)
sketch8.addGeometry(Part.LineSegment(V(-6.1, -31.5, 0), V(-3.5, -31.5, 0)), False)
sketch8.addGeometry(Part.LineSegment(V(-3.5, -31.5, 0), V(-3.5, -28.9, 0)), False)
sketch8.addGeometry(Part.ArcOfCircle(Part.Circle(V(0, -35, 0), V(0, 0, 1), 7), math.radians(30), math.radians(60)), False)
sketch8.addGeometry(Part.LineSegment(V(3.5, -28.9, 0), V(3.5, -31.5, 0)), False)
sketch8.addGeometry(Part.LineSegment(V(3.5, -31.5, 0), V(6.1, -31.5, 0)), False)
sketch8.addGeometry(Part.Circle(V(0, -35, 0), V(0, 0, 1), 1.5), False)
sketch8.addConstraint(Sketcher.Constraint("Coincident", 1, 2, 2, 1))
sketch8.addConstraint(Sketcher.Constraint("Coincident", 2, 2, 3, 1))
sketch8.addConstraint(Sketcher.Constraint("Coincident", 3, 2, 1, 1))
sketch8.addConstraint(Sketcher.Constraint("Coincident", 4, 2, 5, 1))
sketch8.addConstraint(Sketcher.Constraint("Coincident", 5, 2, 6, 1))
sketch8.addConstraint(Sketcher.Constraint("Coincident", 6, 2, 4, 1))
sketch8.addConstraint(Sketcher.Constraint("Coincident", 7, 2, 8, 1))
sketch8.addConstraint(Sketcher.Constraint("Coincident", 8, 2, 9, 1))
sketch8.addConstraint(Sketcher.Constraint("Coincident", 9, 2, 7, 1))
sketch8.addConstraint(Sketcher.Constraint("Coincident", 10, 2, 11, 1))
sketch8.addConstraint(Sketcher.Constraint("Coincident", 11, 2, 12, 1))
sketch8.addConstraint(Sketcher.Constraint("Coincident", 12, 2, 10, 1))
sketch8.addConstraint(Sketcher.Constraint("Horizontal", 2))
sketch8.addConstraint(Sketcher.Constraint("Vertical", 3))
sketch8.addConstraint(Sketcher.Constraint("Vertical", 5))
sketch8.addConstraint(Sketcher.Constraint("Horizontal", 6))
sketch8.addConstraint(Sketcher.Constraint("Horizontal", 8))
sketch8.addConstraint(Sketcher.Constraint("Vertical", 9))
sketch8.addConstraint(Sketcher.Constraint("Vertical", 11))
sketch8.addConstraint(Sketcher.Constraint("Horizontal", 12))
sketch8.addConstraint(Sketcher.Constraint("Coincident", 1, 3, 0, 3))
sketch8.addConstraint(Sketcher.Constraint("Coincident", 4, 3, 0, 3))
sketch8.addConstraint(Sketcher.Constraint("Coincident", 7, 3, 0, 3))
sketch8.addConstraint(Sketcher.Constraint("Coincident", 10, 3, 0, 3))
sketch8.addConstraint(Sketcher.Constraint("Coincident", 13, 3, 0, 3))
sketch8.addConstraint(Sketcher.Constraint("Equal", 1, 4))
sketch8.addConstraint(Sketcher.Constraint("Equal", 4, 7))
sketch8.addConstraint(Sketcher.Constraint("Equal", 7, 10))
sketch8.addConstraint(Sketcher.Constraint("Symmetric", 3, 2, 4, 2, -2))
sketch8.addConstraint(Sketcher.Constraint("Symmetric", 8, 2, 11, 2, -2))
sketch8.addConstraint(Sketcher.Constraint("Horizontal", 2, 2, 5, 2))
sketch8.addConstraint(Sketcher.Constraint("Vertical", 6, 2, 7, 2))
sketch8.addConstraint(Sketcher.Constraint("Vertical", 5, 2, 8, 2))
sketch8.addConstraint(Sketcher.Constraint("Equal", 12, 3))
sketch8.addConstraint(Sketcher.Constraint("Diameter", 13, 3.0))
sketch8.addConstraint(Sketcher.Constraint("Radius", 1, 7.0))
sketch8.addConstraint(Sketcher.Constraint("Diameter", 0, 15.9))
sketch8.addConstraint(Sketcher.Constraint("DistanceY", 0, 3, -1, 1, 35.0))
sketch8.addConstraint(Sketcher.Constraint("DistanceY", 1, 2, -1, 1, 38.5))
pad4 = body.newObject("PartDesign::Pad", "Pad003")
pad4.Profile = sketch8
pad4.Length = 0.7

sketch9 = body.newObject("Sketcher::SketchObject", "Sketch008")
sketch9.AttachmentSupport = (doc.getObject("XY_Plane"), [""])
sketch9.MapMode = "FlatFace"
sketch9.AttachmentOffset = App.Placement(V(0, 0, -0.7), App.Rotation())
sketch9.addGeometry(Part.ArcOfCircle(Part.Circle(V(0, 0, 0), V(0, 0, 1), 8), math.radians(-116), math.radians(-64)), False)
sketch9.addGeometry(Part.LineSegment(V(4, -7, 0), V(4, -28, 0)), False)
sketch9.addGeometry(Part.ArcOfCircle(Part.Circle(V(0, -35, 0), V(0, 0, 1), 8), math.radians(64), math.radians(116)), False)
sketch9.addGeometry(Part.LineSegment(V(-4, -28, 0), V(-4, -7, 0)), False)
sketch9.addConstraint(Sketcher.Constraint("Coincident", 0, 2, 1, 1))
sketch9.addConstraint(Sketcher.Constraint("Coincident", 1, 2, 2, 1))
sketch9.addConstraint(Sketcher.Constraint("Coincident", 2, 2, 3, 1))
sketch9.addConstraint(Sketcher.Constraint("Coincident", 3, 2, 0, 1))
sketch9.addConstraint(Sketcher.Constraint("Vertical", 1))
sketch9.addConstraint(Sketcher.Constraint("Vertical", 3))
sketch9.addConstraint(Sketcher.Constraint("Coincident", 0, 3, -1, 1))
sketch9.addConstraint(Sketcher.Constraint("Equal", 0, 2))
sketch9.addConstraint(Sketcher.Constraint("Symmetric", 1, 2, 2, 2, -2))
sketch9.addConstraint(Sketcher.Constraint("Radius", 0, 7.95))
sketch9.addConstraint(Sketcher.Constraint("DistanceY", 2, 3, -1, 1, 35.0))
sketch9.addConstraint(Sketcher.Constraint("DistanceX", 2, 2, 1, 2, 7.0))
pad5 = body.newObject("PartDesign::Pad", "Pad004")
pad5.Profile = sketch9
pad5.Length = 0.7

sketch10 = body.newObject("Sketcher::SketchObject", "Sketch009")
sketch10.AttachmentSupport = (doc.getObject("YZ_Plane"), [""])
sketch10.MapMode = "FlatFace"
sketch10.AttachmentOffset = App.Placement(V(0, 0, 3.5), App.Rotation())
sketch10.addGeometry(Part.LineSegment(V(8, -0.7, 0), V(-8, -0.7, 0)), False)
sketch10.addGeometry(Part.LineSegment(V(-8, -0.7, 0), V(-8, -3.7, 0)), False)
sketch10.addGeometry(Part.LineSegment(V(-8, -3.7, 0), V(8, -3.7, 0)), False)
sketch10.addGeometry(Part.LineSegment(V(8, -3.7, 0), V(8, -0.7, 0)), False)
sketch10.addGeometry(Part.LineSegment(V(-27.1, -0.7, 0), V(-43, -0.7, 0)), False)
sketch10.addGeometry(Part.LineSegment(V(-43, -0.7, 0), V(-43, -2.7, 0)), False)
sketch10.addGeometry(Part.LineSegment(V(-43, -2.7, 0), V(-27.1, -2.7, 0)), False)
sketch10.addGeometry(Part.LineSegment(V(-27.1, -2.7, 0), V(-27.1, -0.7, 0)), False)
sketch10.addConstraint(Sketcher.Constraint("Coincident", 0, 2, 1, 1))
sketch10.addConstraint(Sketcher.Constraint("Coincident", 1, 2, 2, 1))
sketch10.addConstraint(Sketcher.Constraint("Coincident", 2, 2, 3, 1))
sketch10.addConstraint(Sketcher.Constraint("Coincident", 3, 2, 0, 1))
sketch10.addConstraint(Sketcher.Constraint("Coincident", 4, 2, 5, 1))
sketch10.addConstraint(Sketcher.Constraint("Coincident", 5, 2, 6, 1))
sketch10.addConstraint(Sketcher.Constraint("Coincident", 6, 2, 7, 1))
sketch10.addConstraint(Sketcher.Constraint("Coincident", 7, 2, 4, 1))
sketch10.addConstraint(Sketcher.Constraint("Horizontal", 0))
sketch10.addConstraint(Sketcher.Constraint("Vertical", 1))
sketch10.addConstraint(Sketcher.Constraint("Horizontal", 2))
sketch10.addConstraint(Sketcher.Constraint("Vertical", 3))
sketch10.addConstraint(Sketcher.Constraint("Horizontal", 4))
sketch10.addConstraint(Sketcher.Constraint("Vertical", 5))
sketch10.addConstraint(Sketcher.Constraint("Horizontal", 6))
sketch10.addConstraint(Sketcher.Constraint("Vertical", 7))
sketch10.addConstraint(Sketcher.Constraint("Horizontal", 3, 2, 4, 2))
sketch10.addConstraint(Sketcher.Constraint("Equal", 2, 4))
sketch10.addConstraint(Sketcher.Constraint("DistanceY", 1, 2, 1, 1, 3.0))
sketch10.addConstraint(Sketcher.Constraint("DistanceY", 5, 2, 5, 1, 2.0))
sketch10.addConstraint(Sketcher.Constraint("DistanceX", 0, 2, 0, 1, 15.9))
sketch10.addConstraint(Sketcher.Constraint("DistanceX", 4, 2, 0, 2, 35.0))
sketch10.addConstraint(Sketcher.Constraint("DistanceY", 0, 2, -1, 1, 0.7))
sketch10.addConstraint(Sketcher.Constraint("DistanceX", 0, 2, -1, 1, 7.95))
pocket5 = body.newObject("PartDesign::Pocket", "Pocket004")
pocket5.Profile = sketch10
pocket5.Type = "ThroughAll"
pocket5.Midplane = True

sketch11 = body.newObject("Sketcher::SketchObject", "Sketch010")
sketch11.AttachmentSupport = (doc.getObject("XY_Plane"), [""])
sketch11.MapMode = "FlatFace"
sketch11.AttachmentOffset = App.Placement(V(0, 0, -1.35), App.Rotation())
sketch11.addGeometry(Part.LineSegment(V(3.5, -24.2, 0), V(3.5, -27.9, 0)), False)
sketch11.addGeometry(Part.ArcOfCircle(Part.Circle(V(0, -35, 0), V(0, 0, 1), 8), math.radians(64), math.radians(116)), False)
sketch11.addGeometry(Part.LineSegment(V(-3.5, -27.9, 0), V(-3.5, -24.2, 0)), False)
sketch11.addGeometry(Part.LineSegment(V(-3.5, -24.2, 0), V(3.5, -24.2, 0)), False)
sketch11.addConstraint(Sketcher.Constraint("Coincident", 0, 2, 1, 1))
sketch11.addConstraint(Sketcher.Constraint("Coincident", 1, 2, 2, 1))
sketch11.addConstraint(Sketcher.Constraint("Coincident", 2, 2, 3, 1))
sketch11.addConstraint(Sketcher.Constraint("Coincident", 3, 2, 0, 1))
sketch11.addConstraint(Sketcher.Constraint("Vertical", 0))
sketch11.addConstraint(Sketcher.Constraint("Vertical", 2))
sketch11.addConstraint(Sketcher.Constraint("Horizontal", 3))
sketch11.addConstraint(Sketcher.Constraint("Symmetric", 0, 2, 1, 2, -2))
sketch11.addConstraint(Sketcher.Constraint("DistanceX", 3, 1, 3, 2, 7.0))
sketch11.addConstraint(Sketcher.Constraint("Radius", 1, 7.95))
sketch11.addConstraint(Sketcher.Constraint("DistanceY", 0, 2, 0, 1, 3.7))
sketch11.addConstraint(Sketcher.Constraint("DistanceY", 1, 3, -1, 1, 35.0))
pad6 = body.newObject("PartDesign::Pad", "Pad005")
pad6.Profile = sketch11
pad6.Length = 0.65

sketch12 = body.newObject("Sketcher::SketchObject", "Sketch011")
sketch12.AttachmentSupport = (doc.getObject("XY_Plane"), [""])
sketch12.MapMode = "FlatFace"
sketch12.AttachmentOffset = App.Placement(V(0, 0, -3.35), App.Rotation())
sketch12.addGeometry(Part.ArcOfCircle(Part.Circle(V(0, -35, 0), V(0, 0, 1), 8), math.radians(180), math.radians(424)), False)
sketch12.addGeometry(Part.ArcOfCircle(Part.Circle(V(0, -35, 0), V(0, 0, 1), 8), math.radians(116), math.radians(180)), False)
sketch12.addGeometry(Part.ArcOfCircle(Part.Circle(V(0, -35, 0), V(0, 0, 1), 8), math.radians(64), math.radians(116)), False)
sketch12.addGeometry(Part.ArcOfCircle(Part.Circle(V(0, -35, 0), V(0, 0, 1), 7), math.radians(-60), math.radians(-30)), False)
sketch12.addGeometry(Part.LineSegment(V(6.1, -38.5, 0), V(3.5, -38.5, 0)), False)
sketch12.addGeometry(Part.LineSegment(V(3.5, -38.5, 0), V(3.5, -41.1, 0)), False)
sketch12.addGeometry(Part.ArcOfCircle(Part.Circle(V(0, -35, 0), V(0, 0, 1), 7), math.radians(-150), math.radians(-120)), False)
sketch12.addGeometry(Part.LineSegment(V(-3.5, -41.1, 0), V(-3.5, -38.5, 0)), False)
sketch12.addGeometry(Part.LineSegment(V(-3.5, -38.5, 0), V(-6.1, -38.5, 0)), False)
sketch12.addGeometry(Part.ArcOfCircle(Part.Circle(V(0, -35, 0), V(0, 0, 1), 7), math.radians(120), math.radians(150)), False)
sketch12.addGeometry(Part.LineSegment(V(-6.1, -31.5, 0), V(-3.5, -31.5, 0)), False)
sketch12.addGeometry(Part.LineSegment(V(-3.5, -31.5, 0), V(-3.5, -28.9, 0)), False)
sketch12.addGeometry(Part.ArcOfCircle(Part.Circle(V(0, -35, 0), V(0, 0, 1), 7), math.radians(30), math.radians(60)), False)
sketch12.addGeometry(Part.LineSegment(V(3.5, -28.9, 0), V(3.5, -31.5, 0)), False)
sketch12.addGeometry(Part.LineSegment(V(3.5, -31.5, 0), V(6.1, -31.5, 0)), False)
sketch12.addGeometry(Part.Circle(V(0, -35, 0), V(0, 0, 1), 1.5), False)
sketch12.addConstraint(Sketcher.Constraint("Tangent", 0, 1, 1, 2))
sketch12.addConstraint(Sketcher.Constraint("Tangent", 1, 1, 2, 2))
sketch12.addConstraint(Sketcher.Constraint("Tangent", 2, 1, 0, 2))
sketch12.addConstraint(Sketcher.Constraint("Coincident", 3, 2, 4, 1))
sketch12.addConstraint(Sketcher.Constraint("Coincident", 4, 2, 5, 1))
sketch12.addConstraint(Sketcher.Constraint("Coincident", 5, 2, 3, 1))
sketch12.addConstraint(Sketcher.Constraint("Coincident", 6, 2, 7, 1))
sketch12.addConstraint(Sketcher.Constraint("Coincident", 7, 2, 8, 1))
sketch12.addConstraint(Sketcher.Constraint("Coincident", 8, 2, 6, 1))
sketch12.addConstraint(Sketcher.Constraint("Coincident", 9, 2, 10, 1))
sketch12.addConstraint(Sketcher.Constraint("Coincident", 10, 2, 11, 1))
sketch12.addConstraint(Sketcher.Constraint("Coincident", 11, 2, 9, 1))
sketch12.addConstraint(Sketcher.Constraint("Coincident", 12, 2, 13, 1))
sketch12.addConstraint(Sketcher.Constraint("Coincident", 13, 2, 14, 1))
sketch12.addConstraint(Sketcher.Constraint("Coincident", 14, 2, 12, 1))
sketch12.addConstraint(Sketcher.Constraint("Horizontal", 4))
sketch12.addConstraint(Sketcher.Constraint("Vertical", 5))
sketch12.addConstraint(Sketcher.Constraint("Vertical", 7))
sketch12.addConstraint(Sketcher.Constraint("Horizontal", 8))
sketch12.addConstraint(Sketcher.Constraint("Horizontal", 10))
sketch12.addConstraint(Sketcher.Constraint("Vertical", 11))
sketch12.addConstraint(Sketcher.Constraint("Vertical", 13))
sketch12.addConstraint(Sketcher.Constraint("Horizontal", 14))
sketch12.addConstraint(Sketcher.Constraint("Coincident", 3, 3, 0, 3))
sketch12.addConstraint(Sketcher.Constraint("Coincident", 6, 3, 0, 3))
sketch12.addConstraint(Sketcher.Constraint("Coincident", 9, 3, 0, 3))
sketch12.addConstraint(Sketcher.Constraint("Coincident", 12, 3, 0, 3))
sketch12.addConstraint(Sketcher.Constraint("Coincident", 15, 3, 0, 3))
sketch12.addConstraint(Sketcher.Constraint("Equal", 3, 6))
sketch12.addConstraint(Sketcher.Constraint("Equal", 6, 9))
sketch12.addConstraint(Sketcher.Constraint("Equal", 9, 12))
sketch12.addConstraint(Sketcher.Constraint("Symmetric", 1, 1, 2, 1, -2))
sketch12.addConstraint(Sketcher.Constraint("Symmetric", 4, 2, 7, 2, -2))
sketch12.addConstraint(Sketcher.Constraint("Symmetric", 10, 2, 13, 2, -2))
sketch12.addConstraint(Sketcher.Constraint("Horizontal", 15, 3, 0, 1))
sketch12.addConstraint(Sketcher.Constraint("Vertical", 2, 1, 4, 2))
sketch12.addConstraint(Sketcher.Constraint("Vertical", 8, 2, 9, 2))
sketch12.addConstraint(Sketcher.Constraint("Vertical", 7, 2, 10, 2))
sketch12.addConstraint(Sketcher.Constraint("Equal", 14, 5))
sketch12.addConstraint(Sketcher.Constraint("Diameter", 15, 3.0))
sketch12.addConstraint(Sketcher.Constraint("Radius", 3, 7.0))
sketch12.addConstraint(Sketcher.Constraint("Radius", 0, 7.95))
sketch12.addConstraint(Sketcher.Constraint("DistanceY", 0, 3, -1, 1, 35.0))
sketch12.addConstraint(Sketcher.Constraint("DistanceX", 1, 1, 2, 1, 7.0))
pad7 = body.newObject("PartDesign::Pad", "Pad006")
pad7.Profile = sketch12
pad7.Length = 2.65

sketch13 = body.newObject("Sketcher::SketchObject", "Sketch012")
sketch13.AttachmentSupport = (doc.getObject("XY_Plane"), [""])
sketch13.MapMode = "FlatFace"
sketch13.AttachmentOffset = App.Placement(V(0, 0, 3), App.Rotation())
sketch13.addGeometry(Part.Circle(V(0, 0, 0), V(0, 0, 1), 2.5), False)
sketch13.addConstraint(Sketcher.Constraint("Coincident", 0, 3, -1, 1))
sketch13.addConstraint(Sketcher.Constraint("Diameter", 0, 5.1))
pocket6 = body.newObject("PartDesign::Pocket", "Pocket005")
pocket6.Profile = sketch13
pocket6.Type = "ThroughAll"

doc.recompute()
